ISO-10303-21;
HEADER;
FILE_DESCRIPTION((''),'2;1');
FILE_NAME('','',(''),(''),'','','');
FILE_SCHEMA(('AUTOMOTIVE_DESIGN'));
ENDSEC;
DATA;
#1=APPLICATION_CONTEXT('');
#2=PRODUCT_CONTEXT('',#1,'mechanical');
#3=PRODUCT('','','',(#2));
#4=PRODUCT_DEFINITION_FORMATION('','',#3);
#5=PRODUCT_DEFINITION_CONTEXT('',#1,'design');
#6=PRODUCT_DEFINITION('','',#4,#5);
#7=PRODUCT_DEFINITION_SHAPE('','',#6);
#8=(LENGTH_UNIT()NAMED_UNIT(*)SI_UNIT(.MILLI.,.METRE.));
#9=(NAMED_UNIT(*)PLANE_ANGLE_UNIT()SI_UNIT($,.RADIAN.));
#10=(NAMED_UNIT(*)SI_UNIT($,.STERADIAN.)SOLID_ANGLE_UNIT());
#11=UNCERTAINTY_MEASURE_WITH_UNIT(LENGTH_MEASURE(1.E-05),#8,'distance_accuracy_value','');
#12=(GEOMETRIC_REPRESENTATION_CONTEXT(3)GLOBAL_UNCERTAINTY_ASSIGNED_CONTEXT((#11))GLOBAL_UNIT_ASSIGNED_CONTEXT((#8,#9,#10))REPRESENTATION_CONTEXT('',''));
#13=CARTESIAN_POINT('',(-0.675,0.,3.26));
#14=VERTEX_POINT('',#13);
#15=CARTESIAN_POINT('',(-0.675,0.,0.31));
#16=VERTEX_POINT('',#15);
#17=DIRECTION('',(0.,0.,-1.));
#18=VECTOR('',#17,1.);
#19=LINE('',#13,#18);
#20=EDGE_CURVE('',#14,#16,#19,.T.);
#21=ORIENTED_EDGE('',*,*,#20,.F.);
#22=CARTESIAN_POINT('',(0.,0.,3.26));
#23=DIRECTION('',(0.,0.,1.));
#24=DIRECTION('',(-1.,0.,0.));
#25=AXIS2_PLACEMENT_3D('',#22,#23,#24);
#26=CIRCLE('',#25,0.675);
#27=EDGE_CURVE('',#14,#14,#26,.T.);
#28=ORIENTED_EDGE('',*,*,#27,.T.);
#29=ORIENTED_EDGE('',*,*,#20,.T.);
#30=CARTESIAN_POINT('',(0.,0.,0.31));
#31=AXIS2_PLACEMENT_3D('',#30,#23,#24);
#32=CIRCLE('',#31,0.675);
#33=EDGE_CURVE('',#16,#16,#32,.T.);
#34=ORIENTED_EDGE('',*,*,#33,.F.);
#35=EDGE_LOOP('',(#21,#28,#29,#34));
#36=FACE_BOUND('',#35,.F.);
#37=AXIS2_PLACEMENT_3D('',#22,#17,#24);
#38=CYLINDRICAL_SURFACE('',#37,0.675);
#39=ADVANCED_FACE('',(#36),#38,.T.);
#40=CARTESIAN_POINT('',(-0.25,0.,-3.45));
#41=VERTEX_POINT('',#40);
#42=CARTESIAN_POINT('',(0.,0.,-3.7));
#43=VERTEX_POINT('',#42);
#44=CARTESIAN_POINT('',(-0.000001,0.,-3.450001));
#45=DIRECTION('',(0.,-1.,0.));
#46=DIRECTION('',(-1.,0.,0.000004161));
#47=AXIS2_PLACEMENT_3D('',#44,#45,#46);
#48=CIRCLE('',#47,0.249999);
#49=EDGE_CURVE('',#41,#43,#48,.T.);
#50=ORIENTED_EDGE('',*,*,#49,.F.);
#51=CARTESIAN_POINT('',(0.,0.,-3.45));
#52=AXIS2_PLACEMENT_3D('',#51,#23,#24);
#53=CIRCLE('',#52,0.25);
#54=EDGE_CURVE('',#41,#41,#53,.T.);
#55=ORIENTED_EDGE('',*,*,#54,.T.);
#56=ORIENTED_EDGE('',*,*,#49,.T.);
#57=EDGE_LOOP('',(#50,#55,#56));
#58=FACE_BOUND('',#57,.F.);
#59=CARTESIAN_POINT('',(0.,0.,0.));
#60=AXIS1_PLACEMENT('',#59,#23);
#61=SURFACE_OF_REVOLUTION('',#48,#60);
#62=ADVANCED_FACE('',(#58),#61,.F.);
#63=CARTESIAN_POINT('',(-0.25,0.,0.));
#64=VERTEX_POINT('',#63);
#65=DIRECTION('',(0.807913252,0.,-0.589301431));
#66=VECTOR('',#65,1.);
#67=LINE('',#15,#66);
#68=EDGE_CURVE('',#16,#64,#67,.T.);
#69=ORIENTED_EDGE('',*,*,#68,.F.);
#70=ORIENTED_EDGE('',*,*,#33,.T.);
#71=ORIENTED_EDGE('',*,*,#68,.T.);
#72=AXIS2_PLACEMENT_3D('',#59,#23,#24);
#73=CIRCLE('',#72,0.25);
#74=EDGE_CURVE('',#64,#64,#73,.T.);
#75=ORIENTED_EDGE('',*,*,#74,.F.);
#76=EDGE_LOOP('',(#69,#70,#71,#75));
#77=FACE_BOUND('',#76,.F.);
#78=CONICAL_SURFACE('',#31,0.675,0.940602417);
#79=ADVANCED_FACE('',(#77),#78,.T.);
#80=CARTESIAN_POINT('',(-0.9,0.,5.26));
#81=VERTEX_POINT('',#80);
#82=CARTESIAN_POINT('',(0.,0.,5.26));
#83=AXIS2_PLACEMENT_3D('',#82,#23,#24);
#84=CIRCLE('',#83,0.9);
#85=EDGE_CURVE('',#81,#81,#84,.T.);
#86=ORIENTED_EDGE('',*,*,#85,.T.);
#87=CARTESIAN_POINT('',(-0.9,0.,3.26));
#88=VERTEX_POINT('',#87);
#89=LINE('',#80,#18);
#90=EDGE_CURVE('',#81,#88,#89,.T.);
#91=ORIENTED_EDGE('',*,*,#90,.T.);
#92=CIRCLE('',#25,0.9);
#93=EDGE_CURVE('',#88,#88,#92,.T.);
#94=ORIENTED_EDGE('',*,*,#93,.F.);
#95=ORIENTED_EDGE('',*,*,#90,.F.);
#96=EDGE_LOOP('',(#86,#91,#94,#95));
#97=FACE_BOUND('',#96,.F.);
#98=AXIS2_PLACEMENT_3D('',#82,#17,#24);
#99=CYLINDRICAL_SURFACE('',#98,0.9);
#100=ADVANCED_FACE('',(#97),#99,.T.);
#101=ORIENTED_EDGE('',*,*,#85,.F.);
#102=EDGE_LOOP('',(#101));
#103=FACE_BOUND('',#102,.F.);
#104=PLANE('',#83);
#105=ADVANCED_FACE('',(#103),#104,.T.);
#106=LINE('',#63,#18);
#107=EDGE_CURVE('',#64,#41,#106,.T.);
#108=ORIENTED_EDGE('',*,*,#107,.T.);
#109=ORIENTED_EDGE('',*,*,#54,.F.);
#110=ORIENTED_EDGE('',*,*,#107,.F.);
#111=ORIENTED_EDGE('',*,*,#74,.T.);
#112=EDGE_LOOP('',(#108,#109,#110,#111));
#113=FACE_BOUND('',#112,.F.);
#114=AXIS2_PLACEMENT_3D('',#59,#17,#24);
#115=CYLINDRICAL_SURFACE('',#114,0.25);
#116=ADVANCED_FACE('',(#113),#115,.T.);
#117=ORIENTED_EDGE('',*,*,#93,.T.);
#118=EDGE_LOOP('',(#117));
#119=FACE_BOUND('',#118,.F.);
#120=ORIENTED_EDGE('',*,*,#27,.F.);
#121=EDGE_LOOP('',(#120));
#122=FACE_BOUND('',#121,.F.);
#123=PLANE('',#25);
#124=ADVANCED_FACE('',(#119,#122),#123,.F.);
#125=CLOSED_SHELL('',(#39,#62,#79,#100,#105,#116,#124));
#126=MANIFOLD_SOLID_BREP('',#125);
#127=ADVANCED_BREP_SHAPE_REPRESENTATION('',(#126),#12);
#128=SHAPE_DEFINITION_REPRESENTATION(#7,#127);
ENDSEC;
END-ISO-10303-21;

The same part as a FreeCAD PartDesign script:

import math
import FreeCAD as App
import Part
import Sketcher

V = App.Vector
Q = App.Units.Quantity

doc = App.newDocument("Part")
params = doc.addObject("Spreadsheet::Sheet", "Params")
for row, (alias, value) in enumerate([
    ("sketch1_height", "2 mm"),
    ("sketch1_radius", "0.249999 mm"),
    ("sketch1_width", "0.9 mm"),
    ("sketch1_height2", "2.95 mm"),
    ("sketch1_height3", "3.45 mm"),
    ("revolution_angle", "360 deg"),
], start=1):
    params.set(f"A{row}", alias)
    params.set(f"B{row}", "=" + value)
    params.setAlias(f"B{row}", alias)

body = doc.addObject("PartDesign::Body", "Body")

# Sketch on XZ plane
sketch1 = body.newObject("Sketcher::SketchObject", "Sketch")
sketch1.AttachmentSupport = (doc.getObject("XZ_Plane"), [""])
sketch1.MapMode = "FlatFace"
sketch1.addGeometry(Part.LineSegment(V(0, 5.26, 0), V(-0.9, 5.26, 0)), False)
sketch1.addGeometry(Part.LineSegment(V(-0.9, 5.26, 0), V(-0.9, 3.26, 0)), False)
sketch1.addGeometry(Part.LineSegment(V(-0.9, 3.26, 0), V(-0.68, 3.26, 0)), False)
sketch1.addGeometry(Part.LineSegment(V(-0.68, 3.26, 0), V(-0.68, 0.31, 0)), False)
sketch1.addGeometry(Part.LineSegment(V(-0.68, 0.31, 0), V(-0.25, 0, 0)), False)
sketch1.addGeometry(Part.LineSegment(V(-0.25, 0, 0), V(-0.25, -3.45, 0)), False)
sketch1.addGeometry(Part.ArcOfCircle(Part.Circle(V(0, -3.45, 0), V(0, 0, 1), 0.25), math.radians(180), math.radians(270)), False)
sketch1.addGeometry(Part.LineSegment(V(0, -3.7, 0), V(0, 5.26, 0)), False)
sketch1.addConstraint(Sketcher.Constraint("Coincident", 0, 2, 1, 1))
sketch1.addConstraint(Sketcher.Constraint("Coincident", 1, 2, 2, 1))
sketch1.addConstraint(Sketcher.Constraint("Coincident", 2, 2, 3, 1))
sketch1.addConstraint(Sketcher.Constraint("Coincident", 3, 2, 4, 1))
sketch1.addConstraint(Sketcher.Constraint("Coincident", 4, 2, 5, 1))
sketch1.addConstraint(Sketcher.Constraint("Coincident", 5, 2, 6, 1))
sketch1.addConstraint(Sketcher.Constraint("Coincident", 6, 2, 7, 1))
sketch1.addConstraint(Sketcher.Constraint("Coincident", 7, 2, 0, 1))
sketch1.addConstraint(Sketcher.Constraint("Horizontal", 0))
sketch1.addConstraint(Sketcher.Constraint("Vertical", 1))
sketch1.addConstraint(Sketcher.Constraint("Horizontal", 2))
sketch1.addConstraint(Sketcher.Constraint("Vertical", 3))
sketch1.addConstraint(Sketcher.Constraint("Vertical", 5))
sketch1.addConstraint(Sketcher.Constraint("Vertical", 7))
sketch1.addConstraint(Sketcher.Constraint("PointOnObject", 6, 3, -2))
sketch1.addConstraint(Sketcher.Constraint("PointOnObject", 4, 2, -1))
sketch1.addConstraint(Sketcher.Constraint("PointOnObject", 6, 2, -2))
sketch1.addConstraint(Sketcher.Constraint("Horizontal", 6, 3, 5, 2))
sketch1.addConstraint(Sketcher.Constraint("DistanceY", 1, 2, 1, 1, Q("2 mm")))
sketch1.addConstraint(Sketcher.Constraint("Radius", 6, Q("0.249999 mm")))
sketch1.addConstraint(Sketcher.Constraint("DistanceX", 0, 2, 0, 1, Q("0.9 mm")))
sketch1.addConstraint(Sketcher.Constraint("DistanceY", 3, 2, 3, 1, Q("2.95 mm")))
sketch1.addConstraint(Sketcher.Constraint("DistanceY", 5, 2, 5, 1, Q("3.45 mm")))
sketch1.addConstraint(Sketcher.Constraint("DistanceY", 7, 1, 7, 2, Q("8.96 mm")))
sketch1.addConstraint(Sketcher.Constraint("DistanceX", 2, 1, 2, 2, Q("0.225 mm")))
sketch1.setExpression("Constraints[18]", "Params.sketch1_height")
sketch1.setExpression("Constraints[19]", "Params.sketch1_radius")
sketch1.setExpression("Constraints[20]", "Params.sketch1_width")
sketch1.setExpression("Constraints[21]", "Params.sketch1_height2")
sketch1.setExpression("Constraints[22]", "Params.sketch1_height3")
revolution = body.newObject("PartDesign::Revolution", "Revolution")
revolution.Profile = sketch1
revolution.ReferenceAxis = (sketch1, ["V_Axis"])
revolution.setExpression("Angle", "Params.revolution_angle")

doc.recompute()
